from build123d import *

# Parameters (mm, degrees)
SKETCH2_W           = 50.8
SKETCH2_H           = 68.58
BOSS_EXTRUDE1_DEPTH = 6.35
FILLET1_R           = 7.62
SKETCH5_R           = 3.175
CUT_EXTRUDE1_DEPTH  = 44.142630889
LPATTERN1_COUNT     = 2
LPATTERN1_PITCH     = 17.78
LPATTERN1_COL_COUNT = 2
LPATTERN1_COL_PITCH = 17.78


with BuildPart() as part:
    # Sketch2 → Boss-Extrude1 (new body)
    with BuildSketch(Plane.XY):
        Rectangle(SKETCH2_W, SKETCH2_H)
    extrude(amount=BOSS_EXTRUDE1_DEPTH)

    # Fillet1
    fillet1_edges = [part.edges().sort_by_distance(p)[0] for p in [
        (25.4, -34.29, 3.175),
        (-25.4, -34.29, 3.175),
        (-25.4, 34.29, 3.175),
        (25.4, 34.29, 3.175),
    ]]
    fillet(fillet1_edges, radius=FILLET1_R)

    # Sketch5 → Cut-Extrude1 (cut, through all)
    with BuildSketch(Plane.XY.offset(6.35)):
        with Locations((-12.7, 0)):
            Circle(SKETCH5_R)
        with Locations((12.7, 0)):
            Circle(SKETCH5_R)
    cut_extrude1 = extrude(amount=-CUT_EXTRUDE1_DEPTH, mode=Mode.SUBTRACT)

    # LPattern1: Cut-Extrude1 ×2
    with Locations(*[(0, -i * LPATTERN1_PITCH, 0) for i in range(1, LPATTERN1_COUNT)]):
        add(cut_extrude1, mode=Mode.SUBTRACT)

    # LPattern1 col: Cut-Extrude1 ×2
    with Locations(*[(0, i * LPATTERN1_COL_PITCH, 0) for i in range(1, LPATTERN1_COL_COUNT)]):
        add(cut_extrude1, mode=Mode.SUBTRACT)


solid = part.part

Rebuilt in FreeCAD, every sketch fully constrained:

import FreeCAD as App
import Part
import Sketcher
Q = App.Units.Quantity


def edges_at(feature, points):
    """Names of the edges that pass closest to the given points."""
    edges = feature.Shape.Edges
    near = lambda p: min(range(len(edges)), key=lambda i: edges[i].distToShape(Part.Vertex(*p))[0])
    return sorted({f"Edge{near(p) + 1}" for p in points})


def add_polygon(sketch, points):
    """Adds a closed chain of lines whose ends are joined by coincident constraints."""
    first, n = sketch.GeometryCount, len(points)
    for a, b in zip(points, points[1:] + points[:1]):
        sketch.addGeometry(Part.LineSegment(App.Vector(*a, 0), App.Vector(*b, 0)), False)
    for i in range(n):
        sketch.addConstraint(Sketcher.Constraint("Coincident", first + i, 2, first + (i + 1) % n, 1))

doc = App.newDocument("Part")
params = doc.addObject("Spreadsheet::Sheet", "Params")
for row, (alias, value) in enumerate([
    ("sketch1_width", "2 in"),
    ("sketch1_height", "2.7 in"),
    ("pad1_length", "0.25 in"),
    ("fillet_radius", "0.3 in"),
    ("sketch2_diameter", "0.25 in"),
    ("linearpattern_pitch", "0.7 in"),
    ("linearpattern2_pitch", "0.7 in"),
], start=1):
    params.set(f"A{row}", alias)
    params.set(f"B{row}", "=" + value)
    params.setAlias(f"B{row}", alias)

body = doc.addObject("PartDesign::Body", "Body")

# Sketch on XY plane
sketch1 = body.newObject("Sketcher::SketchObject", "Sketch")
sketch1.AttachmentSupport = (doc.getObject("XY_Plane"), [""])
sketch1.MapMode = "FlatFace"
add_polygon(sketch1, [(-25, 34), (-25, -34), (25, -34), (25, 34)])  # lines 0-3
sketch1.addConstraint([
    Sketcher.Constraint("Vertical", 0),
    Sketcher.Constraint("Horizontal", 1),
    Sketcher.Constraint("Vertical", 2),
    Sketcher.Constraint("Horizontal", 3),
    Sketcher.Constraint("Symmetric", 0, 2, 2, 2, -1, 1),
    Sketcher.Constraint("DistanceX", 1, 1, 1, 2, Q("2 in")),
    Sketcher.Constraint("DistanceY", 0, 2, 0, 1, Q("2.7 in")),
])
sketch1.setExpression("Constraints[9]", "Params.sketch1_width")
sketch1.setExpression("Constraints[10]", "Params.sketch1_height")
pad1 = body.newObject("PartDesign::Pad", "Pad")
pad1.Profile = sketch1
pad1.setExpression("Length", "Params.pad1_length")
doc.recompute()

fillet = body.newObject("PartDesign::Fillet", "Fillet")
fillet.Base = (pad1, edges_at(pad1, [
    (25.4, -34.29, 3.175),
    (-25.4, -34.29, 3.175),
    (-25.4, 34.29, 3.175),
    (25.4, 34.29, 3.175),
]))
fillet.setExpression("Radius", "Params.fillet_radius")

# Sketch on XY plane
sketch2 = body.newObject("Sketcher::SketchObject", "Sketch001")
sketch2.AttachmentSupport = (doc.getObject("XY_Plane"), [""])
sketch2.MapMode = "FlatFace"
sketch2.AttachmentOffset = App.Placement(App.Vector(0, 0, 0.25 * 25.4), App.Rotation())
sketch2.addGeometry([
    Part.Circle(App.Vector(-12.7, 0, 0), App.Vector(0, 0, 1), 3.2),
    Part.Circle(App.Vector(12.7, 0, 0), App.Vector(0, 0, 1), 3.2),
], False)
sketch2.addConstraint([
    Sketcher.Constraint("Equal", 0, 1),
    Sketcher.Constraint("Symmetric", 0, 3, 1, 3, -1, 1),
    Sketcher.Constraint("PointOnObject", 0, 3, -1),
    Sketcher.Constraint("Diameter", 0, Q("0.25 in")),
    Sketcher.Constraint("DistanceX", 0, 3, 1, 3, Q("1 in")),
])
sketch2.setExpression("Constraints[3]", "Params.sketch2_diameter")
pocket1 = body.newObject("PartDesign::Pocket", "Pocket")
pocket1.Profile = sketch2
pocket1.Type = "ThroughAll"
doc.recompute()

linearpattern = body.newObject("PartDesign::LinearPattern", "LinearPattern")
linearpattern.Originals = [pocket1]
linearpattern.Direction = (doc.getObject("Y_Axis"), [""])
linearpattern.Mode = "offset"
linearpattern.setExpression("Offset", "Params.linearpattern_pitch")
linearpattern.Occurrences = 2
linearpattern.Reversed = True
body.Tip = linearpattern
doc.recompute()

linearpattern2 = body.newObject("PartDesign::LinearPattern", "LinearPattern001")
linearpattern2.Originals = [pocket1]
linearpattern2.Direction = (doc.getObject("Y_Axis"), [""])
linearpattern2.Mode = "offset"
linearpattern2.setExpression("Offset", "Params.linearpattern2_pitch")
linearpattern2.Occurrences = 2
body.Tip = linearpattern2

doc.recompute()
